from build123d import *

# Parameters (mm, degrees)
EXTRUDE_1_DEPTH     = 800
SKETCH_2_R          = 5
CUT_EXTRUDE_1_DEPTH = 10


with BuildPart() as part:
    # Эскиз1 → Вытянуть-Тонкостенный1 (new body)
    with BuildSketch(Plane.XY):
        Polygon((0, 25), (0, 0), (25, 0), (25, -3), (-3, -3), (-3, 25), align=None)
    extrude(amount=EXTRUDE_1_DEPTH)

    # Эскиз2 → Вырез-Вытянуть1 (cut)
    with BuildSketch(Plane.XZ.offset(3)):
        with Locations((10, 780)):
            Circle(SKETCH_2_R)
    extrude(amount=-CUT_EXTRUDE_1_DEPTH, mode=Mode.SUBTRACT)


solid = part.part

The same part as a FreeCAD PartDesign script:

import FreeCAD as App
import Part
import Sketcher
from FreeCAD import Vector


def add_polygon(sketch, points):
    """Adds a closed chain of lines whose ends are joined by coincident constraints."""
    first, n = sketch.GeometryCount, len(points)
    for a, b in zip(points, points[1:] + points[:1]):
        sketch.addGeometry(Part.LineSegment(App.Vector(*a, 0), App.Vector(*b, 0)), False)
    for i in range(n):
        sketch.addConstraint(Sketcher.Constraint("Coincident", first + i, 2, first + (i + 1) % n, 1))

doc = App.newDocument("Part")
body = doc.addObject("PartDesign::Body", "Body")

sketch1 = body.newObject("Sketcher::SketchObject", "Sketch")
sketch1.AttachmentSupport = (doc.getObject("XY_Plane"), [""])
sketch1.MapMode = "FlatFace"
add_polygon(sketch1, [(0, 0), (0, 25), (-3, 25), (-3, -3), (25, -3), (25, 0)])
sketch1.addConstraint(Sketcher.Constraint("Vertical", 0))
sketch1.addConstraint(Sketcher.Constraint("Horizontal", 1))
sketch1.addConstraint(Sketcher.Constraint("Vertical", 2))
sketch1.addConstraint(Sketcher.Constraint("Horizontal", 3))
sketch1.addConstraint(Sketcher.Constraint("Vertical", 4))
sketch1.addConstraint(Sketcher.Constraint("Horizontal", 5))
sketch1.addConstraint(Sketcher.Constraint("Coincident", 5, 2, -1, 1))
sketch1.addConstraint(Sketcher.Constraint("Equal", 5, 0))
sketch1.addConstraint(Sketcher.Constraint("Equal", 3, 2))
sketch1.addConstraint(Sketcher.Constraint("DistanceX", 1, 2, 1, 1, 3.0))
sketch1.addConstraint(Sketcher.Constraint("DistanceX", 3, 1, 3, 2, 28.0))
pad1 = body.newObject("PartDesign::Pad", "Pad")
pad1.Profile = sketch1
pad1.Length = 800

sketch2 = body.newObject("Sketcher::SketchObject", "Sketch001")
sketch2.AttachmentSupport = (doc.getObject("XZ_Plane"), [""])
sketch2.MapMode = "FlatFace"
sketch2.AttachmentOffset = App.Placement(Vector(0, 0, 3), App.Rotation())
sketch2.addGeometry(Part.Circle(Vector(10, 780, 0), Vector(0, 0, 1), 5), False)
sketch2.addConstraint(Sketcher.Constraint("Diameter", 0, 10.0))
sketch2.addConstraint(Sketcher.Constraint("DistanceX", -1, 1, 0, 3, 10.0))
sketch2.addConstraint(Sketcher.Constraint("DistanceY", -1, 1, 0, 3, 780.0))
pocket1 = body.newObject("PartDesign::Pocket", "Pocket")
pocket1.Profile = sketch2
pocket1.Length = 10

doc.recompute()
